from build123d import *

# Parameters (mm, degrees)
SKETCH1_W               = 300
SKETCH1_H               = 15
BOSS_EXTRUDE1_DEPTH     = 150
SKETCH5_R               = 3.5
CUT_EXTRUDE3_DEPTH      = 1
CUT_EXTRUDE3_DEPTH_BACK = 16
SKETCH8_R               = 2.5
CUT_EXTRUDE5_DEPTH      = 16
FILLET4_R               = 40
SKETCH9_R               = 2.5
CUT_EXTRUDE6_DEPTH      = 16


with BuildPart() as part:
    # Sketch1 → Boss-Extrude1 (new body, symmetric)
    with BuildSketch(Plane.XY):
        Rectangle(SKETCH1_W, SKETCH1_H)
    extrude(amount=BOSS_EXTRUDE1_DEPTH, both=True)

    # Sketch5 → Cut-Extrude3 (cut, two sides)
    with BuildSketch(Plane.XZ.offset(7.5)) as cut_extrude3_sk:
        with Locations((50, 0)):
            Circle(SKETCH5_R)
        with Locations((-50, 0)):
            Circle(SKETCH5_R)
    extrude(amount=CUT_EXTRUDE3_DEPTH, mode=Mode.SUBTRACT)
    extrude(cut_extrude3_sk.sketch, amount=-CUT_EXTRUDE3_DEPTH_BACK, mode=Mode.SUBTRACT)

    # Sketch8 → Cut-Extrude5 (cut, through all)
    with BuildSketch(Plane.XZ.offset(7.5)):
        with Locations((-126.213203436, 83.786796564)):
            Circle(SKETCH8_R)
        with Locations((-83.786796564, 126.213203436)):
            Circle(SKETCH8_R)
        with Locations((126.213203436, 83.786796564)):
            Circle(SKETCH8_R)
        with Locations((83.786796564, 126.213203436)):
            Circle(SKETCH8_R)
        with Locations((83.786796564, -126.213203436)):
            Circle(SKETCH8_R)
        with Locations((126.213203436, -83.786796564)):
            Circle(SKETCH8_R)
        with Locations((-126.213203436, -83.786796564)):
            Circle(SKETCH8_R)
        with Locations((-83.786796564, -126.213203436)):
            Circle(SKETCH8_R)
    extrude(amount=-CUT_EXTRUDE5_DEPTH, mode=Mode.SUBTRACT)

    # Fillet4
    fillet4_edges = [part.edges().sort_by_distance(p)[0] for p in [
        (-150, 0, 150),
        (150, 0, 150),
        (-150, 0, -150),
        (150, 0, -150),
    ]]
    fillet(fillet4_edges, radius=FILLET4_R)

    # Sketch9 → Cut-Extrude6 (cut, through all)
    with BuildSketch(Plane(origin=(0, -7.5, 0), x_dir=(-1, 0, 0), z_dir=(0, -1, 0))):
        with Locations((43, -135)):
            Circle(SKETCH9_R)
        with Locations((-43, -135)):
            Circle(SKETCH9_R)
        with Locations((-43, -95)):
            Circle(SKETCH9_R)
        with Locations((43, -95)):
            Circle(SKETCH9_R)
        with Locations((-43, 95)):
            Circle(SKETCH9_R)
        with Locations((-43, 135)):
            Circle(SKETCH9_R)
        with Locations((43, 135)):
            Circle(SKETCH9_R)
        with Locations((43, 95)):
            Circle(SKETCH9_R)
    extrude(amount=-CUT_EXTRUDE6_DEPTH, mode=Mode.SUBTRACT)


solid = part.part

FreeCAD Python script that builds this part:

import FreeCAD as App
import Part
import Sketcher
from FreeCAD import Vector


def edges_at(feature, points):
    """Names of the edges that pass closest to the given points."""
    edges = feature.Shape.Edges
    near = lambda p: min(range(len(edges)), key=lambda i: edges[i].distToShape(Part.Vertex(*p))[0])
    return sorted({f"Edge{near(p) + 1}" for p in points})


def add_polygon(sketch, points):
    """Adds a closed chain of lines whose ends are joined by coincident constraints."""
    first, n = sketch.GeometryCount, len(points)
    for a, b in zip(points, points[1:] + points[:1]):
        sketch.addGeometry(Part.LineSegment(App.Vector(*a, 0), App.Vector(*b, 0)), False)
    for i in range(n):
        sketch.addConstraint(Sketcher.Constraint("Coincident", first + i, 2, first + (i + 1) % n, 1))

doc = App.newDocument("Part")
body = doc.addObject("PartDesign::Body", "Body")

sketch1 = body.newObject("Sketcher::SketchObject", "Sketch")
sketch1.AttachmentSupport = (doc.getObject("XY_Plane"), [""])
sketch1.MapMode = "FlatFace"
add_polygon(sketch1, [(-150, 7.5), (-150, -7.5), (150, -7.5), (150, 7.5)])
sketch1.addConstraint(Sketcher.Constraint("Vertical", 0))
sketch1.addConstraint(Sketcher.Constraint("Horizontal", 1))
sketch1.addConstraint(Sketcher.Constraint("Vertical", 2))
sketch1.addConstraint(Sketcher.Constraint("Horizontal", 3))
sketch1.addConstraint(Sketcher.Constraint("Symmetric", 0, 2, 2, 2, -1, 1))
sketch1.addConstraint(Sketcher.Constraint("DistanceX", 1, 1, 1, 2, 300.0))
sketch1.addConstraint(Sketcher.Constraint("DistanceY", 0, 2, 0, 1, 15.0))
pad1 = body.newObject("PartDesign::Pad", "Pad")
pad1.Profile = sketch1
pad1.Length = 300
pad1.Midplane = True

sketch2 = body.newObject("Sketcher::SketchObject", "Sketch001")
sketch2.AttachmentSupport = (doc.getObject("XZ_Plane"), [""])
sketch2.MapMode = "FlatFace"
sketch2.AttachmentOffset = App.Placement(Vector(0, 0, 7.5), App.Rotation())
sketch2.addGeometry(Part.Circle(Vector(50, 0, 0), Vector(0, 0, 1), 3.5), False)
sketch2.addGeometry(Part.Circle(Vector(-50, 0, 0), Vector(0, 0, 1), 3.5), False)
sketch2.addConstraint(Sketcher.Constraint("Equal", 0, 1))
sketch2.addConstraint(Sketcher.Constraint("Symmetric", 0, 3, 1, 3, -1, 1))
sketch2.addConstraint(Sketcher.Constraint("PointOnObject", 0, 3, -1))
sketch2.addConstraint(Sketcher.Constraint("Diameter", 0, 7.0))
sketch2.addConstraint(Sketcher.Constraint("DistanceX", -1, 1, 0, 3, 50.0))
pocket1 = body.newObject("PartDesign::Pocket", "Pocket")
pocket1.Profile = sketch2
pocket1.Type = "ThroughAll"
pocket1.Midplane = True

sketch3 = body.newObject("Sketcher::SketchObject", "Sketch002")
sketch3.AttachmentSupport = (doc.getObject("XZ_Plane"), [""])
sketch3.MapMode = "FlatFace"
sketch3.AttachmentOffset = App.Placement(Vector(0, 0, 7.5), App.Rotation())
sketch3.addGeometry(Part.Circle(Vector(-126.213203, 83.786797, 0), Vector(0, 0, 1), 2.5), False)
sketch3.addGeometry(Part.Circle(Vector(-83.786797, 126.213203, 0), Vector(0, 0, 1), 2.5), False)
sketch3.addGeometry(Part.Circle(Vector(126.213203, 83.786797, 0), Vector(0, 0, 1), 2.5), False)
sketch3.addGeometry(Part.Circle(Vector(83.786797, 126.213203, 0), Vector(0, 0, 1), 2.5), False)
sketch3.addGeometry(Part.Circle(Vector(83.786797, -126.213203, 0), Vector(0, 0, 1), 2.5), False)
sketch3.addGeometry(Part.Circle(Vector(126.213203, -83.786797, 0), Vector(0, 0, 1), 2.5), False)
sketch3.addGeometry(Part.Circle(Vector(-126.213203, -83.786797, 0), Vector(0, 0, 1), 2.5), False)
sketch3.addGeometry(Part.Circle(Vector(-83.786797, -126.213203, 0), Vector(0, 0, 1), 2.5), False)
sketch3.addConstraint(Sketcher.Constraint("Equal", 0, 1))
sketch3.addConstraint(Sketcher.Constraint("Equal", 1, 2))
sketch3.addConstraint(Sketcher.Constraint("Equal", 2, 3))
sketch3.addConstraint(Sketcher.Constraint("Equal", 3, 4))
sketch3.addConstraint(Sketcher.Constraint("Equal", 4, 5))
sketch3.addConstraint(Sketcher.Constraint("Equal", 5, 6))
sketch3.addConstraint(Sketcher.Constraint("Equal", 6, 7))
sketch3.addConstraint(Sketcher.Constraint("Symmetric", 1, 3, 4, 3, -1, 1))
sketch3.addConstraint(Sketcher.Constraint("Symmetric", 0, 3, 5, 3, -1, 1))
sketch3.addConstraint(Sketcher.Constraint("Symmetric", 2, 3, 6, 3, -1, 1))
sketch3.addConstraint(Sketcher.Constraint("Symmetric", 3, 3, 7, 3, -1, 1))
sketch3.addConstraint(Sketcher.Constraint("Symmetric", 0, 3, 2, 3, -2))
sketch3.addConstraint(Sketcher.Constraint("Symmetric", 1, 3, 3, 3, -2))
sketch3.addConstraint(Sketcher.Constraint("Diameter", 0, 5.0))
sketch3.addConstraint(Sketcher.Constraint("DistanceX", 1, 3, 2, 3, 210.0))
sketch3.addConstraint(Sketcher.Constraint("DistanceY", 4, 3, 2, 3, 210.0))
sketch3.addConstraint(Sketcher.Constraint("DistanceX", 0, 3, -1, 1, 126.213203))
sketch3.addConstraint(Sketcher.Constraint("DistanceY", -1, 1, 0, 3, 83.786797))
pocket2 = body.newObject("PartDesign::Pocket", "Pocket001")
pocket2.Profile = sketch3
pocket2.Type = "ThroughAll"
doc.recompute()

fillet = body.newObject("PartDesign::Fillet", "Fillet")
fillet.Base = (pocket2, edges_at(pocket2, [
    (-150, 0, 150),
    (150, 0, 150),
    (-150, 0, -150),
    (150, 0, -150),
]))
fillet.Radius = 40

sketch4 = body.newObject("Sketcher::SketchObject", "Sketch003")
sketch4.AttachmentSupport = (doc.getObject("XZ_Plane"), [""])
sketch4.MapMode = "FlatFace"
sketch4.AttachmentOffset = App.Placement(Vector(0, 0, 7.5), App.Rotation())
sketch4.addGeometry(Part.Circle(Vector(-43, 135, 0), Vector(0, 0, 1), 2.5), False)
sketch4.addGeometry(Part.Circle(Vector(43, 135, 0), Vector(0, 0, 1), 2.5), False)
sketch4.addGeometry(Part.Circle(Vector(43, 95, 0), Vector(0, 0, 1), 2.5), False)
sketch4.addGeometry(Part.Circle(Vector(-43, 95, 0), Vector(0, 0, 1), 2.5), False)
sketch4.addGeometry(Part.Circle(Vector(43, -95, 0), Vector(0, 0, 1), 2.5), False)
sketch4.addGeometry(Part.Circle(Vector(43, -135, 0), Vector(0, 0, 1), 2.5), False)
sketch4.addGeometry(Part.Circle(Vector(-43, -135, 0), Vector(0, 0, 1), 2.5), False)
sketch4.addGeometry(Part.Circle(Vector(-43, -95, 0), Vector(0, 0, 1), 2.5), False)
sketch4.addConstraint(Sketcher.Constraint("Equal", 0, 1))
sketch4.addConstraint(Sketcher.Constraint("Equal", 1, 2))
sketch4.addConstraint(Sketcher.Constraint("Equal", 2, 3))
sketch4.addConstraint(Sketcher.Constraint("Equal", 3, 4))
sketch4.addConstraint(Sketcher.Constraint("Equal", 4, 5))
sketch4.addConstraint(Sketcher.Constraint("Equal", 5, 6))
sketch4.addConstraint(Sketcher.Constraint("Equal", 6, 7))
sketch4.addConstraint(Sketcher.Constraint("Symmetric", 3, 3, 4, 3, -1, 1))
sketch4.addConstraint(Sketcher.Constraint("Symmetric", 0, 3, 5, 3, -1, 1))
sketch4.addConstraint(Sketcher.Constraint("Symmetric", 1, 3, 6, 3, -1, 1))
sketch4.addConstraint(Sketcher.Constraint("Symmetric", 2, 3, 7, 3, -1, 1))
sketch4.addConstraint(Sketcher.Constraint("Symmetric", 0, 3, 1, 3, -2))
sketch4.addConstraint(Sketcher.Constraint("Symmetric", 2, 3, 3, 3, -2))
sketch4.addConstraint(Sketcher.Constraint("Vertical", 1, 3, 2, 3))
sketch4.addConstraint(Sketcher.Constraint("Diameter", 0, 5.0))
sketch4.addConstraint(Sketcher.Constraint("DistanceX", 0, 3, -1, 1, 43.0))
sketch4.addConstraint(Sketcher.Constraint("DistanceY", -1, 1, 0, 3, 135.0))
sketch4.addConstraint(Sketcher.Constraint("DistanceY", -1, 1, 2, 3, 95.0))
pocket3 = body.newObject("PartDesign::Pocket", "Pocket002")
pocket3.Profile = sketch4
pocket3.Type = "ThroughAll"

doc.recompute()
